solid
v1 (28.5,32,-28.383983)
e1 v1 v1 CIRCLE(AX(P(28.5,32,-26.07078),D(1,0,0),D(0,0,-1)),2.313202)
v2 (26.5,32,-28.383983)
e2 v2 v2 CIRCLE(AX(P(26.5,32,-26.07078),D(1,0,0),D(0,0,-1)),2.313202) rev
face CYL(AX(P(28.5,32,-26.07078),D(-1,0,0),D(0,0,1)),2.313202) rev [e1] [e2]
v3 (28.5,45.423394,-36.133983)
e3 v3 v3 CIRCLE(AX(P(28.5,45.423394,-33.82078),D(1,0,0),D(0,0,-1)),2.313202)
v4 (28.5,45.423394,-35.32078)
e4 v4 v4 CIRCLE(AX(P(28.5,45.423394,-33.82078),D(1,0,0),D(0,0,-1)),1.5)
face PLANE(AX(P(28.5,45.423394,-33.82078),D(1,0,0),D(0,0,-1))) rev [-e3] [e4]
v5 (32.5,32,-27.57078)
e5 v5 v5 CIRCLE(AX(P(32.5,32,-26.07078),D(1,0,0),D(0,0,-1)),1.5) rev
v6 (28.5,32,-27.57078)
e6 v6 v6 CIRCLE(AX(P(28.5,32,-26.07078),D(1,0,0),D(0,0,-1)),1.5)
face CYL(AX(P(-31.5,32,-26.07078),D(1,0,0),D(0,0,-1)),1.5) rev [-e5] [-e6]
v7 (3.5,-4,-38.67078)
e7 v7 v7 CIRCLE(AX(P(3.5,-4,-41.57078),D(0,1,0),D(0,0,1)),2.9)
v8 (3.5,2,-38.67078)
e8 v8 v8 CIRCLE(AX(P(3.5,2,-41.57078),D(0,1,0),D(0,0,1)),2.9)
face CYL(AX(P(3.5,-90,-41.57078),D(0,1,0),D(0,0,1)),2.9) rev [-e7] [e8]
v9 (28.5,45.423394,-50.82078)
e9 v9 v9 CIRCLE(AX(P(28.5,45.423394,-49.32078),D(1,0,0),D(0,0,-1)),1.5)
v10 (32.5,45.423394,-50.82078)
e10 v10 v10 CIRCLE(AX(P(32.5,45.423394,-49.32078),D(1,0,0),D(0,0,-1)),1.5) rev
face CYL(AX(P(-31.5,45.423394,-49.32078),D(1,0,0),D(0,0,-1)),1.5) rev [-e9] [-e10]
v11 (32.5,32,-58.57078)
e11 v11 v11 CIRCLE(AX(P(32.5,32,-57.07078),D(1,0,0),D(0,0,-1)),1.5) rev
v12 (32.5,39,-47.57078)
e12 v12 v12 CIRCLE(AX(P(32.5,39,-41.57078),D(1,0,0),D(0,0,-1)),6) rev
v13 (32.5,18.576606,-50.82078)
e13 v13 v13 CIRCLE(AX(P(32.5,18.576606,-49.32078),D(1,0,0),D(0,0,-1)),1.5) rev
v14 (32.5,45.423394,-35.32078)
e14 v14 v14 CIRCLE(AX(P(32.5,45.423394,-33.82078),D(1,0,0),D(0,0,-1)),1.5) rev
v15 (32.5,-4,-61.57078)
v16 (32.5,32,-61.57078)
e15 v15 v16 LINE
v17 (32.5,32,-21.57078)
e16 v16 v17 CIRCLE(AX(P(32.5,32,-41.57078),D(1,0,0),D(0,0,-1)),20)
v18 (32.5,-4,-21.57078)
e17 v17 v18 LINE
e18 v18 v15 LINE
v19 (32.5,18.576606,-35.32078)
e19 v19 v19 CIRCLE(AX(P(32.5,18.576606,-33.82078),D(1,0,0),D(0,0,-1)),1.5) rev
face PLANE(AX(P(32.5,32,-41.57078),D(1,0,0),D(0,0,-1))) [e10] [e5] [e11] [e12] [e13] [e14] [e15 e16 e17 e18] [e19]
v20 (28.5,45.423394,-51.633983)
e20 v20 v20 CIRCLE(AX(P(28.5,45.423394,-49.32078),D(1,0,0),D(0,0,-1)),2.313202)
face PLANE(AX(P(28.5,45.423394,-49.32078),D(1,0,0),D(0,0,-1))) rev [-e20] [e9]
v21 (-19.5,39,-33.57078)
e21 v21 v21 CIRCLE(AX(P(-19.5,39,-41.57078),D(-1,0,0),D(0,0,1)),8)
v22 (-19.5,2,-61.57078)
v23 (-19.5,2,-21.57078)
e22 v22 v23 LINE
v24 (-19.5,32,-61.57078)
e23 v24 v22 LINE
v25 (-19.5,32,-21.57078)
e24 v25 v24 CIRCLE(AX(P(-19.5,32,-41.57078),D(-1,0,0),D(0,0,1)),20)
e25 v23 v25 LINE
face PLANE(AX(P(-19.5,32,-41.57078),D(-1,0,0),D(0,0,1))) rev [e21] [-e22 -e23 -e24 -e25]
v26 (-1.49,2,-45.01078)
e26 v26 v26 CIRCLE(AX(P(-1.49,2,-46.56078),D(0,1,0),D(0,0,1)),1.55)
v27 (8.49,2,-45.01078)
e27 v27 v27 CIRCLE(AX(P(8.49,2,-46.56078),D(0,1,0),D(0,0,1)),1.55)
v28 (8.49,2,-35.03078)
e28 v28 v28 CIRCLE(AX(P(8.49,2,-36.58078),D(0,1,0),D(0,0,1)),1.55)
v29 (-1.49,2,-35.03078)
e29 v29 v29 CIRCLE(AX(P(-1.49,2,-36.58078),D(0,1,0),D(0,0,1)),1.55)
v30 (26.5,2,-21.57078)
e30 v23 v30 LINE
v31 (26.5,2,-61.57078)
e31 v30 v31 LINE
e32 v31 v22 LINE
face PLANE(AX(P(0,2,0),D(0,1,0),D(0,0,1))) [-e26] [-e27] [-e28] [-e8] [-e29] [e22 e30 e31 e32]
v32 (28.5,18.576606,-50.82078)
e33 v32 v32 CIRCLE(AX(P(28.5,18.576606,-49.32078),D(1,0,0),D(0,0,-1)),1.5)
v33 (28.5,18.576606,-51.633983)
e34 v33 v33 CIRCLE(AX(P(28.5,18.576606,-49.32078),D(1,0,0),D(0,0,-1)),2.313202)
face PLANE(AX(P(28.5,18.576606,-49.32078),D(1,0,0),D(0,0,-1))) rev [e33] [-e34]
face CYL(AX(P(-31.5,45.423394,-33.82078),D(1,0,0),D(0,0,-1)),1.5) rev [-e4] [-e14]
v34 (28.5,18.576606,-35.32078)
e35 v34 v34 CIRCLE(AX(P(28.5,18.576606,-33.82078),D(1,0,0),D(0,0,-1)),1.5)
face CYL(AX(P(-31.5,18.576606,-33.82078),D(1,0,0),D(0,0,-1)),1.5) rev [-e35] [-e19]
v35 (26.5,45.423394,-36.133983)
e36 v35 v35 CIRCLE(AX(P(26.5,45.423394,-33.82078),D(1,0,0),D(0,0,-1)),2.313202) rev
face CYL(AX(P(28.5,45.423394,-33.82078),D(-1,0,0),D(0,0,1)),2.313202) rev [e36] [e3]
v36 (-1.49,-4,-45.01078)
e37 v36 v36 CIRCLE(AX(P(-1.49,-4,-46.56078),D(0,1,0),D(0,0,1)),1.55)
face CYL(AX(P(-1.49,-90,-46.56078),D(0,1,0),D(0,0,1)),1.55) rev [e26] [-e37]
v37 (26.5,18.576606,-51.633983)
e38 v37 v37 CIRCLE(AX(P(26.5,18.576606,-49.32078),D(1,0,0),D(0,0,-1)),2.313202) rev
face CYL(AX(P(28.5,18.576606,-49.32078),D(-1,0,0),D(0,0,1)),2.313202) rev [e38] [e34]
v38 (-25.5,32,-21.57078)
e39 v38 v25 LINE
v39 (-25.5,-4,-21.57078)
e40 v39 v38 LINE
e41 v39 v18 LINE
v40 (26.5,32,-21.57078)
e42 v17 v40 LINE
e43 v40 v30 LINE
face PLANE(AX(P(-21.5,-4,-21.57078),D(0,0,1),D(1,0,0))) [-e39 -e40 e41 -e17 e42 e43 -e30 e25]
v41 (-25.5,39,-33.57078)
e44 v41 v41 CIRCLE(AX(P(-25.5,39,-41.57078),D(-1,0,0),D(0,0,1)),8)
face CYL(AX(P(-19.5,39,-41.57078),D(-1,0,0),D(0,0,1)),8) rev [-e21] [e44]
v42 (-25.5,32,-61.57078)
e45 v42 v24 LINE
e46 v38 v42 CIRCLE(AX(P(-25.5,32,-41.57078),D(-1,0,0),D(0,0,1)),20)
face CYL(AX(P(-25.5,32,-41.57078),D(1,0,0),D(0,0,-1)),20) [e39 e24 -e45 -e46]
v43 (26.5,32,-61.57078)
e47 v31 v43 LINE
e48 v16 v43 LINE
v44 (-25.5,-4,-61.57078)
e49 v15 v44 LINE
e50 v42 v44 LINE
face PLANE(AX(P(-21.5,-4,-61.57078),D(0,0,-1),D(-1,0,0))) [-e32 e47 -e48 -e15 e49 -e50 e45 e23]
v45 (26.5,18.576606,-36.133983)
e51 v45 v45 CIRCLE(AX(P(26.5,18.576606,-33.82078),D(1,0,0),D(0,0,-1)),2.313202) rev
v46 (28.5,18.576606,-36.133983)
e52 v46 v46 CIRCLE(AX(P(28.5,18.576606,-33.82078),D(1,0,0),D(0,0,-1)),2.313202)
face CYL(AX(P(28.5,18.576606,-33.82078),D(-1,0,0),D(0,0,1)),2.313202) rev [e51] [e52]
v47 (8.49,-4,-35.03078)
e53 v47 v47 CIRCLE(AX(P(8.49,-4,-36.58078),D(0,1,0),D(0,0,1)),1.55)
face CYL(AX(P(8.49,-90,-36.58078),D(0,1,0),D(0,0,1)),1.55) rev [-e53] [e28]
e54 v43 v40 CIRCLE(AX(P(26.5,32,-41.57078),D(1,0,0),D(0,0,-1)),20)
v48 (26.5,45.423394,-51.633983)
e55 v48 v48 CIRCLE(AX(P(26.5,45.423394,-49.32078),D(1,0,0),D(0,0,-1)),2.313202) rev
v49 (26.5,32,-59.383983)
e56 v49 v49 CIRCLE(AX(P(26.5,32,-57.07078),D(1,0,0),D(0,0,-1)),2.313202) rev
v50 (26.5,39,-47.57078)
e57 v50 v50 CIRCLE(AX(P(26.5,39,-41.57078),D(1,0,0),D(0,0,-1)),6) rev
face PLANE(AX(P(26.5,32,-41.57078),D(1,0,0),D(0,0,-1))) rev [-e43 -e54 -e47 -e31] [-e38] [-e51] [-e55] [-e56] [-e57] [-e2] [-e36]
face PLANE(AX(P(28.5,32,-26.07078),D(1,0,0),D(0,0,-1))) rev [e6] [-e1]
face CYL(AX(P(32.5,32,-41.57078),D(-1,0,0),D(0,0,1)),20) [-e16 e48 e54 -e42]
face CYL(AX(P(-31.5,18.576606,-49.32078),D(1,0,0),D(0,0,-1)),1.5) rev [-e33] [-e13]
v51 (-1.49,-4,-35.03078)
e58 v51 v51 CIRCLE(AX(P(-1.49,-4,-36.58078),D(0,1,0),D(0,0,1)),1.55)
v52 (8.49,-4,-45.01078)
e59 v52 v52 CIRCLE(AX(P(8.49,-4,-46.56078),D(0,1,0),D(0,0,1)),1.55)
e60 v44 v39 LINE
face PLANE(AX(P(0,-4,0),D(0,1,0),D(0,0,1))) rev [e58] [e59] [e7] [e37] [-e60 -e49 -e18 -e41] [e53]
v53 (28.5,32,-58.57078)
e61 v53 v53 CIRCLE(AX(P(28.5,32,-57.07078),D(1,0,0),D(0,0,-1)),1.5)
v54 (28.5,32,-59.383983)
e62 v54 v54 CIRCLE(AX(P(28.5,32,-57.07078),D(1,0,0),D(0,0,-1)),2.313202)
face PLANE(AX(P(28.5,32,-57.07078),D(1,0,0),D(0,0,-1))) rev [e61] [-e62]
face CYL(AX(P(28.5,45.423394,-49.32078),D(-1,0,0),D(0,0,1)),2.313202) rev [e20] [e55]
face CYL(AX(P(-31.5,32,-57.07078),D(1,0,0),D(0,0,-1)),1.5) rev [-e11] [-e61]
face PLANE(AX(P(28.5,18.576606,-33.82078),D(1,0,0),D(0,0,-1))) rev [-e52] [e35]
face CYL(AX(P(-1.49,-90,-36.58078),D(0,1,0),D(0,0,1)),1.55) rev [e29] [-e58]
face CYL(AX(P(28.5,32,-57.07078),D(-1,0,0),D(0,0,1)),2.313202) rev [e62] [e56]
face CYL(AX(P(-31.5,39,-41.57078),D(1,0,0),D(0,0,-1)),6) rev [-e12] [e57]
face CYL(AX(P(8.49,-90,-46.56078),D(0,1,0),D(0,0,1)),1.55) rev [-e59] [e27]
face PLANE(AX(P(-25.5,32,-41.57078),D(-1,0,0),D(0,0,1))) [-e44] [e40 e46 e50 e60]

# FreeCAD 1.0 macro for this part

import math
import FreeCAD as App
import Part
import Sketcher

V = App.Vector
Q = App.Units.Quantity

doc = App.newDocument("Part")
body = doc.addObject("PartDesign::Body", "Body")

# Sketch on XZ plane
sketch1 = body.newObject("Sketcher::SketchObject", "Sketch")
sketch1.AttachmentSupport = (doc.getObject("XZ_Plane"), [""])
sketch1.MapMode = "FlatFace"
sketch1.addGeometry(Part.LineSegment(V(-21.5, -61.57078, 0), V(-21.5, -21.57078, 0)), False)
sketch1.addGeometry(Part.LineSegment(V(-21.5, -21.57078, 0), V(28.5, -21.57078, 0)), False)
sketch1.addGeometry(Part.LineSegment(V(28.5, -21.57078, 0), V(28.5, -61.57078, 0)), False)
sketch1.addGeometry(Part.LineSegment(V(28.5, -61.57078, 0), V(-21.5, -61.57078, 0)), False)
sketch1.addConstraint(Sketcher.Constraint("Coincident", 0, 2, 1, 1))
sketch1.addConstraint(Sketcher.Constraint("Coincident", 1, 2, 2, 1))
sketch1.addConstraint(Sketcher.Constraint("Coincident", 2, 2, 3, 1))
sketch1.addConstraint(Sketcher.Constraint("Coincident", 3, 2, 0, 1))
sketch1.addConstraint(Sketcher.Constraint("Vertical", 0))
sketch1.addConstraint(Sketcher.Constraint("Horizontal", 1))
sketch1.addConstraint(Sketcher.Constraint("Vertical", 2))
sketch1.addConstraint(Sketcher.Constraint("Horizontal", 3))
sketch1.addConstraint(Sketcher.Constraint("DistanceX", 1, 1, 1, 2, Q("50 mm")))
sketch1.addConstraint(Sketcher.Constraint("DistanceY", 0, 1, 0, 2, Q("40 mm")))
sketch1.addConstraint(Sketcher.Constraint("DistanceX", 0, 2, -1, 1, Q("21.5 mm")))
sketch1.addConstraint(Sketcher.Constraint("DistanceY", 0, 2, -1, 1, Q("21.57078 mm")))
pad1 = body.newObject("PartDesign::Pad", "Pad")
pad1.Profile = sketch1
pad1.Type = "TwoLengths"
pad1.Length = 2
pad1.Length2 = 4
pad1.Reversed = True

# Sketch on YZ plane
sketch2 = body.newObject("Sketcher::SketchObject", "Sketch001")
sketch2.AttachmentSupport = (doc.getObject("YZ_Plane"), [""])
sketch2.MapMode = "FlatFace"
sketch2.AttachmentOffset = App.Placement(V(0, 0, -21.5), App.Rotation())
sketch2.addGeometry(Part.LineSegment(V(2, -61.57078, 0), V(2, -21.57078, 0)), False)
sketch2.addGeometry(Part.LineSegment(V(2, -21.57078, 0), V(32, -21.57078, 0)), False)
sketch2.addGeometry(Part.ArcOfCircle(Part.Circle(V(32, -41.57078, 0), V(0, 0, 1), 20), math.radians(-90), math.radians(90)), False)
sketch2.addGeometry(Part.LineSegment(V(32, -61.57078, 0), V(2, -61.57078, 0)), False)
sketch2.addConstraint(Sketcher.Constraint("Coincident", 0, 2, 1, 1))
sketch2.addConstraint(Sketcher.Constraint("Tangent", 1, 2, 2, 2))
sketch2.addConstraint(Sketcher.Constraint("Tangent", 2, 1, 3, 1))
sketch2.addConstraint(Sketcher.Constraint("Coincident", 3, 2, 0, 1))
sketch2.addConstraint(Sketcher.Constraint("Vertical", 0))
sketch2.addConstraint(Sketcher.Constraint("Horizontal", 1))
sketch2.addConstraint(Sketcher.Constraint("Horizontal", 3))
sketch2.addConstraint(Sketcher.Constraint("Radius", 2, Q("20 mm")))
sketch2.addConstraint(Sketcher.Constraint("DistanceX", 1, 1, 1, 2, Q("30 mm")))
sketch2.addConstraint(Sketcher.Constraint("DistanceX", -1, 1, 2, 3, Q("32 mm")))
sketch2.addConstraint(Sketcher.Constraint("DistanceY", 2, 3, -1, 1, Q("41.57078 mm")))
pad2 = body.newObject("PartDesign::Pad", "Pad001")
pad2.Profile = sketch2
pad2.Type = "TwoLengths"
pad2.Length = 4
pad2.Length2 = 2
pad2.Reversed = True

# Sketch on YZ plane
sketch3 = body.newObject("Sketcher::SketchObject", "Sketch002")
sketch3.AttachmentSupport = (doc.getObject("YZ_Plane"), [""])
sketch3.MapMode = "FlatFace"
sketch3.AttachmentOffset = App.Placement(V(0, 0, 28.5), App.Rotation())
sketch3.addGeometry(Part.LineSegment(V(-4, -21.57078, 0), V(-4, -61.57078, 0)), False)
sketch3.addGeometry(Part.LineSegment(V(-4, -61.57078, 0), V(32, -61.57078, 0)), False)
sketch3.addGeometry(Part.ArcOfCircle(Part.Circle(V(32, -41.57078, 0), V(0, 0, 1), 20), math.radians(-90), math.radians(90)), False)
sketch3.addGeometry(Part.LineSegment(V(32, -21.57078, 0), V(-4, -21.57078, 0)), False)
sketch3.addConstraint(Sketcher.Constraint("Coincident", 0, 2, 1, 1))
sketch3.addConstraint(Sketcher.Constraint("Tangent", 1, 2, 2, 1))
sketch3.addConstraint(Sketcher.Constraint("Tangent", 2, 2, 3, 1))
sketch3.addConstraint(Sketcher.Constraint("Coincident", 3, 2, 0, 1))
sketch3.addConstraint(Sketcher.Constraint("Vertical", 0))
sketch3.addConstraint(Sketcher.Constraint("Horizontal", 1))
sketch3.addConstraint(Sketcher.Constraint("Horizontal", 3))
sketch3.addConstraint(Sketcher.Constraint("Radius", 2, Q("20 mm")))
sketch3.addConstraint(Sketcher.Constraint("DistanceX", 1, 1, 1, 2, Q("36 mm")))
sketch3.addConstraint(Sketcher.Constraint("DistanceX", -1, 1, 2, 3, Q("32 mm")))
sketch3.addConstraint(Sketcher.Constraint("DistanceY", 2, 3, -1, 1, Q("41.57078 mm")))
pad3 = body.newObject("PartDesign::Pad", "Pad002")
pad3.Profile = sketch3
pad3.Type = "TwoLengths"
pad3.Length = 4
pad3.Length2 = 2

# Sketch on YZ plane
sketch4 = body.newObject("Sketcher::SketchObject", "Sketch003")
sketch4.AttachmentSupport = (doc.getObject("YZ_Plane"), [""])
sketch4.MapMode = "FlatFace"
sketch4.AttachmentOffset = App.Placement(V(0, 0, -21.5), App.Rotation())
sketch4.addGeometry(Part.Circle(V(32, -26.07078, 0), V(0, 0, 1), 1.5), False)
sketch4.addGeometry(Part.Circle(V(18.576606, -33.82078, 0), V(0, 0, 1), 1.5), False)
sketch4.addGeometry(Part.Circle(V(18.576606, -49.32078, 0), V(0, 0, 1), 1.5), False)
sketch4.addGeometry(Part.Circle(V(32, -57.07078, 0), V(0, 0, 1), 1.5), False)
sketch4.addGeometry(Part.Circle(V(45.423394, -49.32078, 0), V(0, 0, 1), 1.5), False)
sketch4.addGeometry(Part.Circle(V(45.423394, -33.82078, 0), V(0, 0, 1), 1.5), False)
sketch4.addGeometry(Part.Circle(V(39, -41.57078, 0), V(0, 0, 1), 6), False)
sketch4.addConstraint(Sketcher.Constraint("Equal", 0, 1))
sketch4.addConstraint(Sketcher.Constraint("Equal", 1, 2))
sketch4.addConstraint(Sketcher.Constraint("Equal", 2, 3))
sketch4.addConstraint(Sketcher.Constraint("Equal", 3, 4))
sketch4.addConstraint(Sketcher.Constraint("Equal", 4, 5))
sketch4.addConstraint(Sketcher.Constraint("Horizontal", 2, 3, 4, 3))
sketch4.addConstraint(Sketcher.Constraint("Horizontal", 1, 3, 5, 3))
sketch4.addConstraint(Sketcher.Constraint("Vertical", 1, 3, 2, 3))
sketch4.addConstraint(Sketcher.Constraint("Vertical", 0, 3, 3, 3))
sketch4.addConstraint(Sketcher.Constraint("Vertical", 4, 3, 5, 3))
sketch4.addConstraint(Sketcher.Constraint("Diameter", 0, Q("3 mm")))
sketch4.addConstraint(Sketcher.Constraint("Diameter", 6, Q("12 mm")))
sketch4.addConstraint(Sketcher.Constraint("DistanceX", -1, 1, 0, 3, Q("32 mm")))
sketch4.addConstraint(Sketcher.Constraint("DistanceX", -1, 1, 6, 3, Q("39 mm")))
sketch4.addConstraint(Sketcher.Constraint("DistanceY", 3, 3, 0, 3, Q("31 mm")))
sketch4.addConstraint(Sketcher.Constraint("DistanceY", 2, 3, 1, 3, Q("15.5 mm")))
sketch4.addConstraint(Sketcher.Constraint("DistanceY", 6, 3, 0, 3, Q("15.5 mm")))
sketch4.addConstraint(Sketcher.Constraint("DistanceY", 1, 3, 0, 3, Q("7.75 mm")))
sketch4.addConstraint(Sketcher.Constraint("DistanceY", 0, 3, -1, 1, Q("26.07078 mm")))
sketch4.addConstraint(Sketcher.Constraint("DistanceX", -1, 1, 1, 3, Q("18.576606 mm")))
sketch4.addConstraint(Sketcher.Constraint("DistanceX", -1, 1, 4, 3, Q("45.423394 mm")))
pocket1 = body.newObject("PartDesign::Pocket", "Pocket")
pocket1.Profile = sketch4
pocket1.Type = "ThroughAll"
pocket1.Midplane = True

# Sketch on XZ plane
sketch5 = body.newObject("Sketcher::SketchObject", "Sketch004")
sketch5.AttachmentSupport = (doc.getObject("XZ_Plane"), [""])
sketch5.MapMode = "FlatFace"
sketch5.AttachmentOffset = App.Placement(V(0, 0, -2), App.Rotation())
sketch5.addGeometry(Part.Circle(V(3.5, -41.57078, 0), V(0, 0, 1), 2.9), False)
sketch5.addGeometry(Part.Circle(V(-1.49, -46.56078, 0), V(0, 0, 1), 1.55), False)
sketch5.addGeometry(Part.Circle(V(8.49, -46.56078, 0), V(0, 0, 1), 1.55), False)
sketch5.addGeometry(Part.Circle(V(-1.49, -36.58078, 0), V(0, 0, 1), 1.55), False)
sketch5.addGeometry(Part.Circle(V(8.49, -36.58078, 0), V(0, 0, 1), 1.55), False)
sketch5.addConstraint(Sketcher.Constraint("Equal", 1, 2))
sketch5.addConstraint(Sketcher.Constraint("Equal", 2, 3))
sketch5.addConstraint(Sketcher.Constraint("Equal", 3, 4))
sketch5.addConstraint(Sketcher.Constraint("Horizontal", 1, 3, 2, 3))
sketch5.addConstraint(Sketcher.Constraint("Horizontal", 3, 3, 4, 3))
sketch5.addConstraint(Sketcher.Constraint("Vertical", 1, 3, 3, 3))
sketch5.addConstraint(Sketcher.Constraint("Vertical", 2, 3, 4, 3))
sketch5.addConstraint(Sketcher.Constraint("Diameter", 0, Q("5.8 mm")))
sketch5.addConstraint(Sketcher.Constraint("Diameter", 1, Q("3.1 mm")))
sketch5.addConstraint(Sketcher.Constraint("DistanceX", -1, 1, 0, 3, Q("3.5 mm")))
sketch5.addConstraint(Sketcher.Constraint("DistanceX", 1, 3, -1, 1, Q("1.49 mm")))
sketch5.addConstraint(Sketcher.Constraint("DistanceX", -1, 1, 2, 3, Q("8.49 mm")))
sketch5.addConstraint(Sketcher.Constraint("DistanceY", 1, 3, 0, 3, Q("4.99 mm")))
sketch5.addConstraint(Sketcher.Constraint("DistanceY", 0, 3, 3, 3, Q("4.99 mm")))
sketch5.addConstraint(Sketcher.Constraint("DistanceY", 0, 3, -1, 1, Q("41.57078 mm")))
pocket2 = body.newObject("PartDesign::Pocket", "Pocket001")
pocket2.Profile = sketch5
pocket2.Length = 92
pocket2.Reversed = True

# Sketch on XY plane
sketch6 = body.newObject("Sketcher::SketchObject", "Sketch005")
sketch6.AttachmentSupport = (doc.getObject("XY_Plane"), [""])
sketch6.MapMode = "FlatFace"
sketch6.AttachmentOffset = App.Placement(V(0, 0, -21.57078), App.Rotation())
sketch6.addGeometry(Part.LineSegment(V(-25.5, 2, 0), V(-25.5, -4, 0)), False)
sketch6.addGeometry(Part.LineSegment(V(-25.5, -4, 0), V(-21.5, -4, 0)), False)
sketch6.addGeometry(Part.LineSegment(V(-21.5, -4, 0), V(-21.5, 2, 0)), False)
sketch6.addGeometry(Part.LineSegment(V(-21.5, 2, 0), V(-25.5, 2, 0)), False)
sketch6.addConstraint(Sketcher.Constraint("Coincident", 0, 2, 1, 1))
sketch6.addConstraint(Sketcher.Constraint("Coincident", 1, 2, 2, 1))
sketch6.addConstraint(Sketcher.Constraint("Coincident", 2, 2, 3, 1))
sketch6.addConstraint(Sketcher.Constraint("Coincident", 3, 2, 0, 1))
sketch6.addConstraint(Sketcher.Constraint("Vertical", 0))
sketch6.addConstraint(Sketcher.Constraint("Horizontal", 1))
sketch6.addConstraint(Sketcher.Constraint("Vertical", 2))
sketch6.addConstraint(Sketcher.Constraint("Horizontal", 3))
sketch6.addConstraint(Sketcher.Constraint("DistanceX", 1, 1, 1, 2, Q("4 mm")))
sketch6.addConstraint(Sketcher.Constraint("DistanceY", 0, 2, 0, 1, Q("6 mm")))
sketch6.addConstraint(Sketcher.Constraint("DistanceY", 0, 2, -1, 1, Q("4 mm")))
sketch6.addConstraint(Sketcher.Constraint("DistanceX", 0, 2, -1, 1, Q("25.5 mm")))
pad4 = body.newObject("PartDesign::Pad", "Pad003")
pad4.Profile = sketch6
pad4.Length = 40
pad4.Reversed = True

# Sketch on YZ plane
sketch7 = body.newObject("Sketcher::SketchObject", "Sketch006")
sketch7.AttachmentSupport = (doc.getObject("YZ_Plane"), [""])
sketch7.MapMode = "FlatFace"
sketch7.AttachmentOffset = App.Placement(V(0, 0, -19.5), App.Rotation())
sketch7.addGeometry(Part.Circle(V(32, -26.07078, 0), V(0, 0, 1), 2.313202), False)
sketch7.addGeometry(Part.Circle(V(45.423394, -33.82078, 0), V(0, 0, 1), 2.313202), False)
sketch7.addGeometry(Part.Circle(V(45.423394, -49.32078, 0), V(0, 0, 1), 2.313202), False)
sketch7.addGeometry(Part.Circle(V(32, -57.07078, 0), V(0, 0, 1), 2.313202), False)
sketch7.addGeometry(Part.Circle(V(18.576606, -49.32078, 0), V(0, 0, 1), 2.313202), False)
sketch7.addGeometry(Part.Circle(V(18.576606, -33.82078, 0), V(0, 0, 1), 2.313202), False)
sketch7.addConstraint(Sketcher.Constraint("Equal", 0, 1))
sketch7.addConstraint(Sketcher.Constraint("Equal", 1, 2))
sketch7.addConstraint(Sketcher.Constraint("Equal", 2, 3))
sketch7.addConstraint(Sketcher.Constraint("Equal", 3, 4))
sketch7.addConstraint(Sketcher.Constraint("Equal", 4, 5))
sketch7.addConstraint(Sketcher.Constraint("Horizontal", 2, 3, 4, 3))
sketch7.addConstraint(Sketcher.Constraint("Horizontal", 1, 3, 5, 3))
sketch7.addConstraint(Sketcher.Constraint("Vertical", 1, 3, 2, 3))
sketch7.addConstraint(Sketcher.Constraint("Vertical", 0, 3, 3, 3))
sketch7.addConstraint(Sketcher.Constraint("Vertical", 4, 3, 5, 3))
sketch7.addConstraint(Sketcher.Constraint("DistanceX", -1, 1, 0, 3, Q("32 mm")))
sketch7.addConstraint(Sketcher.Constraint("DistanceY", 3, 3, 0, 3, Q("31 mm")))
sketch7.addConstraint(Sketcher.Constraint("DistanceY", 2, 3, 1, 3, Q("15.5 mm")))
sketch7.addConstraint(Sketcher.Constraint("DistanceY", 1, 3, 0, 3, Q("7.75 mm")))
sketch7.addConstraint(Sketcher.Constraint("Diameter", 0, Q("4.626405 mm")))
sketch7.addConstraint(Sketcher.Constraint("DistanceY", 0, 3, -1, 1, Q("26.07078 mm")))
sketch7.addConstraint(Sketcher.Constraint("DistanceX", -1, 1, 1, 3, Q("45.423394 mm")))
sketch7.addConstraint(Sketcher.Constraint("DistanceX", -1, 1, 4, 3, Q("18.576606 mm")))
pocket3 = body.newObject("PartDesign::Pocket", "Pocket002")
pocket3.Profile = sketch7
pocket3.Length = 48
pocket3.Reversed = True

# Sketch on YZ plane
sketch8 = body.newObject("Sketcher::SketchObject", "Sketch007")
sketch8.AttachmentSupport = (doc.getObject("YZ_Plane"), [""])
sketch8.MapMode = "FlatFace"
sketch8.AttachmentOffset = App.Placement(V(0, 0, -25.5), App.Rotation())
sketch8.addGeometry(Part.LineSegment(V(-4, -21.57078, 0), V(32, -21.57078, 0)), False)
sketch8.addGeometry(Part.ArcOfCircle(Part.Circle(V(32, -41.57078, 0), V(0, 0, 1), 20), math.radians(-90), math.radians(90)), False)
sketch8.addGeometry(Part.LineSegment(V(32, -61.57078, 0), V(-4, -61.57078, 0)), False)
sketch8.addGeometry(Part.LineSegment(V(-4, -61.57078, 0), V(-4, -21.57078, 0)), False)
sketch8.addConstraint(Sketcher.Constraint("Tangent", 0, 2, 1, 2))
sketch8.addConstraint(Sketcher.Constraint("Tangent", 1, 1, 2, 1))
sketch8.addConstraint(Sketcher.Constraint("Coincident", 2, 2, 3, 1))
sketch8.addConstraint(Sketcher.Constraint("Coincident", 3, 2, 0, 1))
sketch8.addConstraint(Sketcher.Constraint("Horizontal", 0))
sketch8.addConstraint(Sketcher.Constraint("Horizontal", 2))
sketch8.addConstraint(Sketcher.Constraint("Vertical", 3))
sketch8.addConstraint(Sketcher.Constraint("Radius", 1, Q("20 mm")))
sketch8.addConstraint(Sketcher.Constraint("DistanceX", 0, 1, 0, 2, Q("36 mm")))
sketch8.addConstraint(Sketcher.Constraint("DistanceX", -1, 1, 1, 3, Q("32 mm")))
sketch8.addConstraint(Sketcher.Constraint("DistanceY", 1, 3, -1, 1, Q("41.57078 mm")))
pad5 = body.newObject("PartDesign::Pad", "Pad004")
pad5.Profile = sketch8
pad5.Length = 6

# Sketch on YZ plane
sketch9 = body.newObject("Sketcher::SketchObject", "Sketch008")
sketch9.AttachmentSupport = (doc.getObject("YZ_Plane"), [""])
sketch9.MapMode = "FlatFace"
sketch9.AttachmentOffset = App.Placement(V(0, 0, -25.5), App.Rotation())
sketch9.addGeometry(Part.Circle(V(39, -41.57078, 0), V(0, 0, 1), 8), False)
sketch9.addConstraint(Sketcher.Constraint("Diameter", 0, Q("16 mm")))
sketch9.addConstraint(Sketcher.Constraint("DistanceX", -1, 1, 0, 3, Q("39 mm")))
sketch9.addConstraint(Sketcher.Constraint("DistanceY", 0, 3, -1, 1, Q("41.57078 mm")))
pocket4 = body.newObject("PartDesign::Pocket", "Pocket003")
pocket4.Profile = sketch9
pocket4.Length = 6
pocket4.Reversed = True

doc.recompute()
